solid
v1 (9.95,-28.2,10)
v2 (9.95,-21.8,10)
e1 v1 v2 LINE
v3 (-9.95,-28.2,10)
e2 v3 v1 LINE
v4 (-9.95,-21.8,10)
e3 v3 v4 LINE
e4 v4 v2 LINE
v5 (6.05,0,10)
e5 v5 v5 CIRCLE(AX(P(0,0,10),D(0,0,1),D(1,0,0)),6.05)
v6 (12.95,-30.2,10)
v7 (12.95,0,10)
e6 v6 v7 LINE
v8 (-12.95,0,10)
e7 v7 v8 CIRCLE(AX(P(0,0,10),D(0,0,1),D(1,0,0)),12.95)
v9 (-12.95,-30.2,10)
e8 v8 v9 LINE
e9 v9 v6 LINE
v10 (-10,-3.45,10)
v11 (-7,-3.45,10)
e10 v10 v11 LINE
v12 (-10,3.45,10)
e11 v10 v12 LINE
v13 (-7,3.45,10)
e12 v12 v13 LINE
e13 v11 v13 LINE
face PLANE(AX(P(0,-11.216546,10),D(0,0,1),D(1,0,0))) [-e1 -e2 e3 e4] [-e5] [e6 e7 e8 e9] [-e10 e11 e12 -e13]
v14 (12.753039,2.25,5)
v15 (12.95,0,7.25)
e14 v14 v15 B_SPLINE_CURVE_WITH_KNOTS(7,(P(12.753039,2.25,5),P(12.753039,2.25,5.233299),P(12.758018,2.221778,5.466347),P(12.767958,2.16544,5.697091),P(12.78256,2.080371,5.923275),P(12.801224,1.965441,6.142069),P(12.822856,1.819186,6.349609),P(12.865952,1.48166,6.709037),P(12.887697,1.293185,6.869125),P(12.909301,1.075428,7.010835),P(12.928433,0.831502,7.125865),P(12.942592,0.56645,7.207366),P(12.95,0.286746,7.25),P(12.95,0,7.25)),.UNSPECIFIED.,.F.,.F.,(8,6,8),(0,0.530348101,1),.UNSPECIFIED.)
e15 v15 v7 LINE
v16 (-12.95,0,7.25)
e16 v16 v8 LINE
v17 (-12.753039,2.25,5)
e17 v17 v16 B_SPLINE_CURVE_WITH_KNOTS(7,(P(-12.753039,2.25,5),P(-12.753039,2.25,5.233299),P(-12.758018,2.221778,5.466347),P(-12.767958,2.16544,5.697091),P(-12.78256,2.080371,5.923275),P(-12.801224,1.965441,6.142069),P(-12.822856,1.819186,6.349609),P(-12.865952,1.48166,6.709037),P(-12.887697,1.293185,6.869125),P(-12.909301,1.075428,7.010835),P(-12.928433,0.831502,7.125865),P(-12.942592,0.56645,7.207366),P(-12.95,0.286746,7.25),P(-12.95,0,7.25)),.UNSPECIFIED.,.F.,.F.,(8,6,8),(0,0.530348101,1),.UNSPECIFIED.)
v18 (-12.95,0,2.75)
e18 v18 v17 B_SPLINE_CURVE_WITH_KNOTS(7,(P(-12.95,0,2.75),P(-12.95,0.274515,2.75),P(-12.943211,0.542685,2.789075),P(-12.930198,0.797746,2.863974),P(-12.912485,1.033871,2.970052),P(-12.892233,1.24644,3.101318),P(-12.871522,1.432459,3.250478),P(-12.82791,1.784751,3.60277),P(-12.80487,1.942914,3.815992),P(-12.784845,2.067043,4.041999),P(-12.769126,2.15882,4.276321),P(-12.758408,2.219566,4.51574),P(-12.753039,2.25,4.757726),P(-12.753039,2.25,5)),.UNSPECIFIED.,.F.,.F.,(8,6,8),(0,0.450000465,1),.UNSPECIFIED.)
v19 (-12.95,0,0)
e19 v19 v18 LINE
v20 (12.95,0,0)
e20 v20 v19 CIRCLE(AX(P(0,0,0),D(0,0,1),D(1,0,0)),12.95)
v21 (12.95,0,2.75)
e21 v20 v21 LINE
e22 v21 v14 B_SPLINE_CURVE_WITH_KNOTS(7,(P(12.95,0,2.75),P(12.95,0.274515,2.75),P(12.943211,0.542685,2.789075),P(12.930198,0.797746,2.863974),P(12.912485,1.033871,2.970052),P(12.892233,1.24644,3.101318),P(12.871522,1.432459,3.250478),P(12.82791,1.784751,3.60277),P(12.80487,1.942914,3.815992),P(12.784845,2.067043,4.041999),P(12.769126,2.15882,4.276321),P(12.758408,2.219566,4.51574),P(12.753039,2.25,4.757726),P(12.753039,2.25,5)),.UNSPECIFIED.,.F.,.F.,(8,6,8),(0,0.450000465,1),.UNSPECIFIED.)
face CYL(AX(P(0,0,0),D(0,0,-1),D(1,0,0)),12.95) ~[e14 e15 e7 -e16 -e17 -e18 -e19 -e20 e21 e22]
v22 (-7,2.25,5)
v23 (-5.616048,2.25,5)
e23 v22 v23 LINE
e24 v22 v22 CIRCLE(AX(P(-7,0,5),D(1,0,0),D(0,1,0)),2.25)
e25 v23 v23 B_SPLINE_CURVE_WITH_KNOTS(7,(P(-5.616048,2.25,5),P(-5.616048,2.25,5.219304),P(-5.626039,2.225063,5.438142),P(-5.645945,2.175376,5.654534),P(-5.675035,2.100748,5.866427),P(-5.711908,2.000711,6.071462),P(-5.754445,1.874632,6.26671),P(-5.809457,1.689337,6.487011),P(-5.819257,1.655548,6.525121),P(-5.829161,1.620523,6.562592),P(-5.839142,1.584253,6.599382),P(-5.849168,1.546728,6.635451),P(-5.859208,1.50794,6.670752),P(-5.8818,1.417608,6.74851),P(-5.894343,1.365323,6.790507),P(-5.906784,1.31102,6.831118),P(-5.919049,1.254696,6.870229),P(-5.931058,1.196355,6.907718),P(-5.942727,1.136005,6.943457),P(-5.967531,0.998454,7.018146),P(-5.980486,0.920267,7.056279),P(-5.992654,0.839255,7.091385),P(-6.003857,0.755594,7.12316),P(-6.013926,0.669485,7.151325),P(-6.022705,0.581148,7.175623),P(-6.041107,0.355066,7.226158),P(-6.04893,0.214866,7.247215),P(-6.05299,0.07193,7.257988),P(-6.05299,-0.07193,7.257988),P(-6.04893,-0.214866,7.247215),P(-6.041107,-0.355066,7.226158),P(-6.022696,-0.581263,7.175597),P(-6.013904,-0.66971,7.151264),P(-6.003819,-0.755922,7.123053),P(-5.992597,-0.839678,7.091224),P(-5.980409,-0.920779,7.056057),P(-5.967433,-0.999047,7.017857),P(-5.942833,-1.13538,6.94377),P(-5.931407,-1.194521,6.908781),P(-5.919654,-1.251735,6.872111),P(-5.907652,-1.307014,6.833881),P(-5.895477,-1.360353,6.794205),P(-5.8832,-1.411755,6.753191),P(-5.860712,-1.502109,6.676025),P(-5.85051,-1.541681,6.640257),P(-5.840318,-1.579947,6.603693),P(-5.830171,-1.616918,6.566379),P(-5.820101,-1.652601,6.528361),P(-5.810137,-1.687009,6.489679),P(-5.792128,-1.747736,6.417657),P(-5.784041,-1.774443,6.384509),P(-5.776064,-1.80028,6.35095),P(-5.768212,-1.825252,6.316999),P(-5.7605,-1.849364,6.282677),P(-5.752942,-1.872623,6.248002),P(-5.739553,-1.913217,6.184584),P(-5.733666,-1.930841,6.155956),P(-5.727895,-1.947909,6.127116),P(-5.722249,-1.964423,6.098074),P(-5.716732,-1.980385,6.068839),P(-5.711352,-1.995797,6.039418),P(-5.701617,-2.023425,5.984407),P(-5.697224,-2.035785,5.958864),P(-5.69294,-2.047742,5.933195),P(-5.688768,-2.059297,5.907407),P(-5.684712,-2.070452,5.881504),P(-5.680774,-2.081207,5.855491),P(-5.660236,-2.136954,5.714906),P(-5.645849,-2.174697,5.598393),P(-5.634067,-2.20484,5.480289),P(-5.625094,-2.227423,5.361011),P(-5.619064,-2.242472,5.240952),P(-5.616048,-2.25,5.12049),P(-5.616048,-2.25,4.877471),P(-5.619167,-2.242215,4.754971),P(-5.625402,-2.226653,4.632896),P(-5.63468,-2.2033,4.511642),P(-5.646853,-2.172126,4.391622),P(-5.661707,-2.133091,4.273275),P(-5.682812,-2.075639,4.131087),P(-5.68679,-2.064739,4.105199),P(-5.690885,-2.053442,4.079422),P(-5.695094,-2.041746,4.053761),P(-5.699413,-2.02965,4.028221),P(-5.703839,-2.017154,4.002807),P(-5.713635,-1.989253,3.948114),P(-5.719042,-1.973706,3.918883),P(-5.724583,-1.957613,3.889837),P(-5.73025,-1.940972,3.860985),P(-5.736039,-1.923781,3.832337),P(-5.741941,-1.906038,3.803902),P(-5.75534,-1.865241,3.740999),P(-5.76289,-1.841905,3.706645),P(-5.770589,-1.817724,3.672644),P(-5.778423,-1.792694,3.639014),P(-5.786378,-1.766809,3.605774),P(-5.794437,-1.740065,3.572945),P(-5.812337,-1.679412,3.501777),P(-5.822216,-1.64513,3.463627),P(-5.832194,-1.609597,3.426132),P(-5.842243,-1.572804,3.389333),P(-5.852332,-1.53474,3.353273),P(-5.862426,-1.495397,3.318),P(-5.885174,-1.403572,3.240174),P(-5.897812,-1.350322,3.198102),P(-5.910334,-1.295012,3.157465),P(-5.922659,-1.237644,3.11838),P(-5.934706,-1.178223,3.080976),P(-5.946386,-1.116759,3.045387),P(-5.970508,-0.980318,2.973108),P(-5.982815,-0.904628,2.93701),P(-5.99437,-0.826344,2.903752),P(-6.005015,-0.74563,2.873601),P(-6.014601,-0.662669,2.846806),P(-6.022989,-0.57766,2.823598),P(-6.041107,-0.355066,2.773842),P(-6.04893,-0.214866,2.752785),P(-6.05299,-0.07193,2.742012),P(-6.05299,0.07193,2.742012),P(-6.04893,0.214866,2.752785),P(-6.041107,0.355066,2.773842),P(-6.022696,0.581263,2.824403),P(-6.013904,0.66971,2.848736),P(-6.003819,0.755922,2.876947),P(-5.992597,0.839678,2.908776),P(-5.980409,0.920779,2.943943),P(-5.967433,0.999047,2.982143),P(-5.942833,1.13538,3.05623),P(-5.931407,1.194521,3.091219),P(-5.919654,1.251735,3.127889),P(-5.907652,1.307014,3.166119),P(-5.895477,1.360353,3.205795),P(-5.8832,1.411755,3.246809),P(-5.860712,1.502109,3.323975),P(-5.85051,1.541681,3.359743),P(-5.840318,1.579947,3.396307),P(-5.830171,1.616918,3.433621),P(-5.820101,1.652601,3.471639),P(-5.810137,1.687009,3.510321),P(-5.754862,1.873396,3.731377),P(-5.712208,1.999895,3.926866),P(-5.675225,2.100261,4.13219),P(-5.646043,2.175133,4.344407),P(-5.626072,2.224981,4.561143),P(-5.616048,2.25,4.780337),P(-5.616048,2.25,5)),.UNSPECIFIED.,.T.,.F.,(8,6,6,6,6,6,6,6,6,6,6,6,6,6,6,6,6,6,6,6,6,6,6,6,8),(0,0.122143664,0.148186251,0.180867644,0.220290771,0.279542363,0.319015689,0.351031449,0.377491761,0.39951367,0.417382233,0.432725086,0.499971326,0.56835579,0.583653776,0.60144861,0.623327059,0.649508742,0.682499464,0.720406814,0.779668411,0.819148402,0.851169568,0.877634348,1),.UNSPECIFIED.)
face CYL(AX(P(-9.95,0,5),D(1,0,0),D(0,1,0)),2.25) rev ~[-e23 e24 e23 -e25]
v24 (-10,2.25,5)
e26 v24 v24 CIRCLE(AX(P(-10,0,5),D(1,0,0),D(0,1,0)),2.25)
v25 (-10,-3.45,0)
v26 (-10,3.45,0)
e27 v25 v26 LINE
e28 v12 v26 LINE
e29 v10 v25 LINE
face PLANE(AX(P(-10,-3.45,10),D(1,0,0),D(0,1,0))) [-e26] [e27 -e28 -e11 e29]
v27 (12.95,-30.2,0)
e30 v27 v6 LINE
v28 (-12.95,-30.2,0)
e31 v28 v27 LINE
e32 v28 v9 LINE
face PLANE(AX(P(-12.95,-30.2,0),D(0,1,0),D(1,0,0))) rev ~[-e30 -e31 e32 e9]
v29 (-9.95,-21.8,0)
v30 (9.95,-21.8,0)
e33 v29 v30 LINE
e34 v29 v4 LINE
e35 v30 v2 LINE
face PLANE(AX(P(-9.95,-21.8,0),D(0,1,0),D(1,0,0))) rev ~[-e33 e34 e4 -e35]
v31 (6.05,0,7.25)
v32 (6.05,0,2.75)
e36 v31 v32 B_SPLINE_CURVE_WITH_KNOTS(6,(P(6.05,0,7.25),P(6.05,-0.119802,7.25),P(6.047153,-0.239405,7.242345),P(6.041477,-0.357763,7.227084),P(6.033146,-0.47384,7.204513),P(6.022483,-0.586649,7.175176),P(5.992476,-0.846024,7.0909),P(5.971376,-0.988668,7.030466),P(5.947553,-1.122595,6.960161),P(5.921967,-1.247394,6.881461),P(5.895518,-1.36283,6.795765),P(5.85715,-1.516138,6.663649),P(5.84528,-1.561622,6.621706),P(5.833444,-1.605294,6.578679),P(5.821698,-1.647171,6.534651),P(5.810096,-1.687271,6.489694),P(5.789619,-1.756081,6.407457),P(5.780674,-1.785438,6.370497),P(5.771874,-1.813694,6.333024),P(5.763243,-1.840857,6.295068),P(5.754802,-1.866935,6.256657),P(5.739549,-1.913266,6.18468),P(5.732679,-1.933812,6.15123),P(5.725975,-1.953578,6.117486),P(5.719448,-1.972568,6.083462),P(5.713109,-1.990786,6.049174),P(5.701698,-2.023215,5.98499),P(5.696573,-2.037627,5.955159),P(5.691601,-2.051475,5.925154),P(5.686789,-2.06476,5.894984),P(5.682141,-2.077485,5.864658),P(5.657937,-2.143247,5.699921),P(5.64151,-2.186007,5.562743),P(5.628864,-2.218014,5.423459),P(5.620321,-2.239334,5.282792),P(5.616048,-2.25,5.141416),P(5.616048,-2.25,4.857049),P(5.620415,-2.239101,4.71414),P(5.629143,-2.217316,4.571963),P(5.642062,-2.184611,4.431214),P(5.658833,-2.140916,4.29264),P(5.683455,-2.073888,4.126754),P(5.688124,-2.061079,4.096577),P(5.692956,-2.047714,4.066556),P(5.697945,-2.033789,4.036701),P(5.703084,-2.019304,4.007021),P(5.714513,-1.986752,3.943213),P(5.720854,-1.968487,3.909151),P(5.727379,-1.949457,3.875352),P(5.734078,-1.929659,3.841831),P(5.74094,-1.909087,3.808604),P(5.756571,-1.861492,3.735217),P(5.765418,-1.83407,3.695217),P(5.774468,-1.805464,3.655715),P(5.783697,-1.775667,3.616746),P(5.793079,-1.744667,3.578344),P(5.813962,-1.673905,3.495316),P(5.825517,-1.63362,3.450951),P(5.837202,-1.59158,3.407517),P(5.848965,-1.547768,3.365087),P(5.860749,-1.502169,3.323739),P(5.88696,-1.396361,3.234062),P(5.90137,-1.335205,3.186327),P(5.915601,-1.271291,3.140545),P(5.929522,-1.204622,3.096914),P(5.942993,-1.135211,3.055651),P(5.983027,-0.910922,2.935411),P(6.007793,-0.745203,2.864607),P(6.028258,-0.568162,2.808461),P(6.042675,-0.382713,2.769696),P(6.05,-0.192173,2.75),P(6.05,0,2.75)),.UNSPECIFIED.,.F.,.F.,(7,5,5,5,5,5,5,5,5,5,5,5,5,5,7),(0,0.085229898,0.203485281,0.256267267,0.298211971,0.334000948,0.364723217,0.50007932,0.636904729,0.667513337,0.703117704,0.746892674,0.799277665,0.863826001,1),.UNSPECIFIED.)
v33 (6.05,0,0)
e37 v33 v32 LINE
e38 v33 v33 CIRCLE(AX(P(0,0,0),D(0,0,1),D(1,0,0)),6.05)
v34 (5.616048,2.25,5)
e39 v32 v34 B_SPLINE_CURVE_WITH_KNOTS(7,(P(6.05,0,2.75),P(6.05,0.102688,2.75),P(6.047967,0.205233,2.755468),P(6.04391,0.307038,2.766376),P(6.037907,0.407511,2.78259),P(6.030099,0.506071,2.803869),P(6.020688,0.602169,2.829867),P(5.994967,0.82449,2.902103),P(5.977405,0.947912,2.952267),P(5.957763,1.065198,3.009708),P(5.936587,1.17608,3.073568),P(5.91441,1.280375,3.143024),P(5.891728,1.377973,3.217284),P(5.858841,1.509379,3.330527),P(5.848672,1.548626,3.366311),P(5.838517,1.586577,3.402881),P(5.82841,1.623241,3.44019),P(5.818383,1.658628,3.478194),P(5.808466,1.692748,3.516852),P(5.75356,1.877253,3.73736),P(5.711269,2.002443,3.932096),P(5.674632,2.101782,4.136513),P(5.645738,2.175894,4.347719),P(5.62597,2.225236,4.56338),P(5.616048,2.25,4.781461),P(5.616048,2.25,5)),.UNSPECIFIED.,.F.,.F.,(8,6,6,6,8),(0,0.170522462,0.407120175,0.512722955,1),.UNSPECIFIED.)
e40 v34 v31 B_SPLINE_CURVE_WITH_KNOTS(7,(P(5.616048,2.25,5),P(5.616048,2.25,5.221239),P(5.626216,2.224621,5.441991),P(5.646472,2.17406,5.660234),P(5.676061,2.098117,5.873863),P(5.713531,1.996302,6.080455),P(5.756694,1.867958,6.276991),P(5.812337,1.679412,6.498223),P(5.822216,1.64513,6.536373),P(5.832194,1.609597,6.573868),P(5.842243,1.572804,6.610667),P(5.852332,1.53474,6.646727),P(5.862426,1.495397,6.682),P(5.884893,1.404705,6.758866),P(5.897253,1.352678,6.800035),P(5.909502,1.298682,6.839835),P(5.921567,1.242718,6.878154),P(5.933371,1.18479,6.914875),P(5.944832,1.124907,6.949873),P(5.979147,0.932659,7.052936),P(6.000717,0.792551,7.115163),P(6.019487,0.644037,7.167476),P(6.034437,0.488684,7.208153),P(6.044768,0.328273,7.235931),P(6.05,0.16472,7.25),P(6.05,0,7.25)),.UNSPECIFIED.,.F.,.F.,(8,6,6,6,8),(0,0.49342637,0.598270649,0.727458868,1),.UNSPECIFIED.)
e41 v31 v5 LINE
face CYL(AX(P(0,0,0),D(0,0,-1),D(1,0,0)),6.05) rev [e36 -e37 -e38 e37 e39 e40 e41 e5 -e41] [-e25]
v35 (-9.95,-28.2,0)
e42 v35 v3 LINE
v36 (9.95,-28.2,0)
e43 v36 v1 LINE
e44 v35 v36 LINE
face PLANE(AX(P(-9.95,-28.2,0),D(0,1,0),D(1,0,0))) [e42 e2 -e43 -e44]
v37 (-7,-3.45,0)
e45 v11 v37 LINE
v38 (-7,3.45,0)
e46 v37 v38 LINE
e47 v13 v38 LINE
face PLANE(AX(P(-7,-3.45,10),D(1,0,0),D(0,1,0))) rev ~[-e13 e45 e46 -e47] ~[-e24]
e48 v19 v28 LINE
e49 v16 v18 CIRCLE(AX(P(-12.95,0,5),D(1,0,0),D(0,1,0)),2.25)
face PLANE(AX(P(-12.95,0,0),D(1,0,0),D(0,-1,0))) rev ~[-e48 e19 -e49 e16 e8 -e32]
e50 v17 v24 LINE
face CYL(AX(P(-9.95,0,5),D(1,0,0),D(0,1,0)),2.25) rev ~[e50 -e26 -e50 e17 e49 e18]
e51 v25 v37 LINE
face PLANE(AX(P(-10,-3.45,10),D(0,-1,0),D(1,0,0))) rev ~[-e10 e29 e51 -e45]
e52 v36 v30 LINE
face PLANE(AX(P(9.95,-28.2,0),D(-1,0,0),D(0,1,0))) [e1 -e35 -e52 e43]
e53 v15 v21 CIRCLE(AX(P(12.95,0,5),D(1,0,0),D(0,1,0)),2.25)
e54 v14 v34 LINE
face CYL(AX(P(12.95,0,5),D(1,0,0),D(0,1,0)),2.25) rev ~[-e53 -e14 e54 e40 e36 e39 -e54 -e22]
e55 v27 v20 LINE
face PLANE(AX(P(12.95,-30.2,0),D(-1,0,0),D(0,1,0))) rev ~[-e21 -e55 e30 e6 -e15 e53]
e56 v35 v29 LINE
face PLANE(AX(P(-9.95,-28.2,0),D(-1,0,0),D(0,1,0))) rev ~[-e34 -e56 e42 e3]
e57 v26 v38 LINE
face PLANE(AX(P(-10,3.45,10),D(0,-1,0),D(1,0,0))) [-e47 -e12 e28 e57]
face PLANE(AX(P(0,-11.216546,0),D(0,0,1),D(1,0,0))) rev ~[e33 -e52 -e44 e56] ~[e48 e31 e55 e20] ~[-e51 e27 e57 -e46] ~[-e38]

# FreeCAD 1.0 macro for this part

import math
import FreeCAD as App
import Part
import Sketcher
from FreeCAD import Vector


def add_polygon(sketch, points):
    """Adds a closed chain of lines whose ends are joined by coincident constraints."""
    first, n = sketch.GeometryCount, len(points)
    for a, b in zip(points, points[1:] + points[:1]):
        sketch.addGeometry(Part.LineSegment(App.Vector(*a, 0), App.Vector(*b, 0)), False)
    for i in range(n):
        sketch.addConstraint(Sketcher.Constraint("Coincident", first + i, 2, first + (i + 1) % n, 1))

doc = App.newDocument("Part")
body = doc.addObject("PartDesign::Body", "Body")

# Sketch on XY plane
sketch1 = body.newObject("Sketcher::SketchObject", "Sketch")
sketch1.AttachmentSupport = (doc.getObject("XY_Plane"), [""])
sketch1.MapMode = "FlatFace"
sketch1.addGeometry(Part.ArcOfCircle(Part.Circle(Vector(0, 0, 0), Vector(0, 0, 1), 13), math.radians(0), math.radians(180)), False)  # 0
sketch1.addGeometry(Part.LineSegment(Vector(-13, 0, 0), Vector(-13, -30, 0)), False)  # 1
sketch1.addGeometry(Part.LineSegment(Vector(-13, -30, 0), Vector(13, -30, 0)), False)  # 2
sketch1.addGeometry(Part.LineSegment(Vector(13, -30, 0), Vector(13, 0, 0)), False)  # 3
add_polygon(sketch1, [(10, -28), (-10, -28), (-10, -22), (10, -22)])  # lines 4-7
sketch1.addGeometry(Part.Circle(Vector(0, 0, 0), Vector(0, 0, 1), 6), False)  # 8
sketch1.addConstraint(Sketcher.Constraint("Tangent", 0, 2, 1, 1))
sketch1.addConstraint(Sketcher.Constraint("Coincident", 1, 2, 2, 1))
sketch1.addConstraint(Sketcher.Constraint("Coincident", 2, 2, 3, 1))
sketch1.addConstraint(Sketcher.Constraint("Tangent", 3, 2, 0, 1))
sketch1.addConstraint(Sketcher.Constraint("Vertical", 1))
sketch1.addConstraint(Sketcher.Constraint("Horizontal", 2))
sketch1.addConstraint(Sketcher.Constraint("Vertical", 3))
sketch1.addConstraint(Sketcher.Constraint("Horizontal", 4))
sketch1.addConstraint(Sketcher.Constraint("Vertical", 5))
sketch1.addConstraint(Sketcher.Constraint("Horizontal", 6))
sketch1.addConstraint(Sketcher.Constraint("Vertical", 7))
sketch1.addConstraint(Sketcher.Constraint("Coincident", 0, 3, -1, 1))
sketch1.addConstraint(Sketcher.Constraint("Coincident", 8, 3, -1, 1))
sketch1.addConstraint(Sketcher.Constraint("Diameter", 8, 12.1))
sketch1.addConstraint(Sketcher.Constraint("Radius", 0, 12.95))
sketch1.addConstraint(Sketcher.Constraint("DistanceX", 4, 2, 4, 1, 19.9))
sketch1.addConstraint(Sketcher.Constraint("DistanceY", 1, 2, 1, 1, 30.2))
sketch1.addConstraint(Sketcher.Constraint("DistanceY", 5, 1, 5, 2, 6.4))
sketch1.addConstraint(Sketcher.Constraint("DistanceX", 1, 2, 4, 2, 3.0))
sketch1.addConstraint(Sketcher.Constraint("DistanceY", 1, 2, 4, 2, 2.0))
pad1 = body.newObject("PartDesign::Pad", "Pad")
pad1.Profile = sketch1
pad1.Length = 10

# Sketch on XY plane
sketch2 = body.newObject("Sketcher::SketchObject", "Sketch001")
sketch2.AttachmentSupport = (doc.getObject("XY_Plane"), [""])
sketch2.MapMode = "FlatFace"
sketch2.AttachmentOffset = App.Placement(Vector(0, 0, 10), App.Rotation())
add_polygon(sketch2, [(-10, 3.5), (-10, -3.5), (-7, -3.5), (-7, 3.5)])  # lines 0-3
sketch2.addConstraint(Sketcher.Constraint("Vertical", 0))
sketch2.addConstraint(Sketcher.Constraint("Horizontal", 1))
sketch2.addConstraint(Sketcher.Constraint("Vertical", 2))
sketch2.addConstraint(Sketcher.Constraint("Horizontal", 3))
sketch2.addConstraint(Sketcher.Constraint("DistanceX", 1, 1, 1, 2, 3.0))
sketch2.addConstraint(Sketcher.Constraint("DistanceY", 0, 2, 0, 1, 6.9))
sketch2.addConstraint(Sketcher.Constraint("DistanceX", 0, 2, -1, 1, 10.0))
sketch2.addConstraint(Sketcher.Constraint("DistanceY", 0, 2, -1, 1, 3.45))
pocket1 = body.newObject("PartDesign::Pocket", "Pocket")
pocket1.Profile = sketch2
pocket1.Length = 12

# Sketch on YZ plane
sketch3 = body.newObject("Sketcher::SketchObject", "Sketch002")
sketch3.AttachmentSupport = (doc.getObject("YZ_Plane"), [""])
sketch3.MapMode = "FlatFace"
sketch3.AttachmentOffset = App.Placement(Vector(0, 0, -9.95), App.Rotation())
sketch3.addGeometry(Part.Circle(Vector(0, 5, 0), Vector(0, 0, 1), 2.2), False)
sketch3.addConstraint(Sketcher.Constraint("PointOnObject", 0, 3, -2))
sketch3.addConstraint(Sketcher.Constraint("Diameter", 0, 4.5))
sketch3.addConstraint(Sketcher.Constraint("DistanceY", -1, 1, 0, 3, 5.0))
pocket2 = body.newObject("PartDesign::Pocket", "Pocket001")
pocket2.Profile = sketch3
pocket2.Length = 12
pocket2.Midplane = True

# Sketch on YZ plane
sketch4 = body.newObject("Sketcher::SketchObject", "Sketch003")
sketch4.AttachmentSupport = (doc.getObject("YZ_Plane"), [""])
sketch4.MapMode = "FlatFace"
sketch4.AttachmentOffset = App.Placement(Vector(0, 0, 12.95), App.Rotation())
sketch4.addGeometry(Part.Circle(Vector(0, 5, 0), Vector(0, 0, 1), 2.2), False)
sketch4.addConstraint(Sketcher.Constraint("PointOnObject", 0, 3, -2))
sketch4.addConstraint(Sketcher.Constraint("Diameter", 0, 4.5))
sketch4.addConstraint(Sketcher.Constraint("DistanceY", -1, 1, 0, 3, 5.0))
pocket3 = body.newObject("PartDesign::Pocket", "Pocket002")
pocket3.Profile = sketch4
pocket3.Type = "ThroughAll"

doc.recompute()
